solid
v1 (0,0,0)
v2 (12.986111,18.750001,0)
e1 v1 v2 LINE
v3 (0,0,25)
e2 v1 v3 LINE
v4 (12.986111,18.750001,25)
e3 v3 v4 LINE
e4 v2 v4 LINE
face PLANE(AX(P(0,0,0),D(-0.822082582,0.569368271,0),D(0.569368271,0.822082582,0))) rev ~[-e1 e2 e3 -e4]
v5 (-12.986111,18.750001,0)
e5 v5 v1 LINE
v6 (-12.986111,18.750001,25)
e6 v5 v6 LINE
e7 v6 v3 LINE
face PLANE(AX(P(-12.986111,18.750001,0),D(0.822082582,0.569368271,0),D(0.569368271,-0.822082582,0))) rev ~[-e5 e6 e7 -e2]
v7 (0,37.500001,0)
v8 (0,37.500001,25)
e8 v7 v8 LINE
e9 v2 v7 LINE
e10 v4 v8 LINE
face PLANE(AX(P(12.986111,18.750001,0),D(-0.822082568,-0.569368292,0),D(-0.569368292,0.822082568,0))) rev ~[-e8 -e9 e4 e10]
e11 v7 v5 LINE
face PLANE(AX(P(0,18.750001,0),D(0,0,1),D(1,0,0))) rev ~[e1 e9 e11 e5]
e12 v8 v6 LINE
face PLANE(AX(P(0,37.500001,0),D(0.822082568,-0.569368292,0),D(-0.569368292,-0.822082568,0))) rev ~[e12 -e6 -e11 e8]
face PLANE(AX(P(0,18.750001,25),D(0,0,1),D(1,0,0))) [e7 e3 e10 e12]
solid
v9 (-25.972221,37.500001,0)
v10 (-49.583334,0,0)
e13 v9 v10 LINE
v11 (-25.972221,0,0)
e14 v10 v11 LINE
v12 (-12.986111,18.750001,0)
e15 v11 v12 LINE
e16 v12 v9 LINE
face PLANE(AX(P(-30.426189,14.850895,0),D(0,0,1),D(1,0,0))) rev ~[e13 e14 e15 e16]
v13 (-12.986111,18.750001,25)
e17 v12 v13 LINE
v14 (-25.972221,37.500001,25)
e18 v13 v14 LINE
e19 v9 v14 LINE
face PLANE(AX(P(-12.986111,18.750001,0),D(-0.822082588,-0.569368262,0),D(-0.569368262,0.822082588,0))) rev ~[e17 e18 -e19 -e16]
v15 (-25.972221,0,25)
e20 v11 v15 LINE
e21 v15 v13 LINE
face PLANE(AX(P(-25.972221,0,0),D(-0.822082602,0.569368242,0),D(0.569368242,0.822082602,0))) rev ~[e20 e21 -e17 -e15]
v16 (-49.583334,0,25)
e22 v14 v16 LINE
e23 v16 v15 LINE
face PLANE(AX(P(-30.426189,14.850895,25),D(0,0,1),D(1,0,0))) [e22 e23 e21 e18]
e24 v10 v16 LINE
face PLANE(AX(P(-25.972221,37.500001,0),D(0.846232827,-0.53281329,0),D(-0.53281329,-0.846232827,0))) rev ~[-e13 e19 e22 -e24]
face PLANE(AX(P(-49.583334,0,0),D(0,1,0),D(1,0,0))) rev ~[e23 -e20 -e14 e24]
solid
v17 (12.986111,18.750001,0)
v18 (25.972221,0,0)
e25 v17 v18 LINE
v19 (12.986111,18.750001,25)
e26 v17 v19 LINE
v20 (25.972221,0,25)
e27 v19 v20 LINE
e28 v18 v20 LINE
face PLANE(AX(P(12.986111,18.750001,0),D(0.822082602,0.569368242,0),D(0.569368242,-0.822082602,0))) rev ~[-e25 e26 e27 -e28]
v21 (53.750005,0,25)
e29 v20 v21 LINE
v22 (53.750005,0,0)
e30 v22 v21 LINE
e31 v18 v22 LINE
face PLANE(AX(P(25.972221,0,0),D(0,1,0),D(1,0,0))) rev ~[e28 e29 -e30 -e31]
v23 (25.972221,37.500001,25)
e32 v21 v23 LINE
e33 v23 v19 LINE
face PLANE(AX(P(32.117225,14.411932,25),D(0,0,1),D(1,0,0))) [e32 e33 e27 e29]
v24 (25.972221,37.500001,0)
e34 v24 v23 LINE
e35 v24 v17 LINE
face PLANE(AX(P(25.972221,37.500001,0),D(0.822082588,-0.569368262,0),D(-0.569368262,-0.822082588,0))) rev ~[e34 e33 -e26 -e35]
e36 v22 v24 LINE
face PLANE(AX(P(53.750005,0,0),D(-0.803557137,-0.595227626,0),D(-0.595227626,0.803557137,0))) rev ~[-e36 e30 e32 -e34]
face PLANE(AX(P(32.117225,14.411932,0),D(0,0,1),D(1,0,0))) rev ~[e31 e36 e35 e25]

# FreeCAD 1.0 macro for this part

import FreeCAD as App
import Part
import Sketcher
Q = App.Units.Quantity


def add_polygon(sketch, points):
    """Adds a closed chain of lines whose ends are joined by coincident constraints."""
    first, n = sketch.GeometryCount, len(points)
    for a, b in zip(points, points[1:] + points[:1]):
        sketch.addGeometry(Part.LineSegment(App.Vector(*a, 0), App.Vector(*b, 0)), False)
    for i in range(n):
        sketch.addConstraint(Sketcher.Constraint("Coincident", first + i, 2, first + (i + 1) % n, 1))

doc = App.newDocument("Part")
body = doc.addObject("PartDesign::Body", "Body")
body.AllowCompound = True

# Sketch on XY plane
sketch1 = body.newObject("Sketcher::SketchObject", "Sketch")
sketch1.AttachmentSupport = (doc.getObject("XY_Plane"), [""])
sketch1.MapMode = "FlatFace"
add_polygon(sketch1, [(26, 38), (13, 19), (26, 0), (54, 0)])  # lines 0-3
add_polygon(sketch1, [(0, 38), (-13, 19), (0, 0), (13, 19)])  # lines 4-7
add_polygon(sketch1, [(-26, 38), (-50, 0), (-26, 0), (-13, 19)])  # lines 8-11
sketch1.addConstraint([
    Sketcher.Constraint("Horizontal", 2),
    Sketcher.Constraint("Horizontal", 9),
    Sketcher.Constraint("Coincident", 5, 2, -1, 1),
    Sketcher.Constraint("Coincident", 6, 2, 0, 2),
    Sketcher.Constraint("Coincident", 10, 2, 4, 2),
    Sketcher.Constraint("Symmetric", 1, 2, 9, 2, -1, 1),
    Sketcher.Constraint("Symmetric", 0, 2, 4, 2, -2),
    Sketcher.Constraint("Symmetric", 3, 2, 11, 2, -2),
    Sketcher.Constraint("PointOnObject", 1, 2, -1),
    Sketcher.Constraint("PointOnObject", 7, 2, -2),
    Sketcher.Constraint("Parallel", 0, 4),
    Sketcher.Constraint("Parallel", 1, 5),
    Sketcher.Constraint("Parallel", 4, 6),
    Sketcher.Constraint("Horizontal", 3, 2, 7, 2),
    Sketcher.Constraint("DistanceY", -1, 1, 3, 2, Q("37.500001 mm")),
    Sketcher.Constraint("Distance", 1, Q("22.807928 mm")),
    Sketcher.Constraint("DistanceX", 2, 1, 2, 2, Q("27.777784 mm")),
    Sketcher.Constraint("DistanceX", 9, 1, 9, 2, Q("23.611113 mm")),
])
pad1 = body.newObject("PartDesign::Pad", "Pad")
pad1.Profile = sketch1
pad1.Length = 25

doc.recompute()
